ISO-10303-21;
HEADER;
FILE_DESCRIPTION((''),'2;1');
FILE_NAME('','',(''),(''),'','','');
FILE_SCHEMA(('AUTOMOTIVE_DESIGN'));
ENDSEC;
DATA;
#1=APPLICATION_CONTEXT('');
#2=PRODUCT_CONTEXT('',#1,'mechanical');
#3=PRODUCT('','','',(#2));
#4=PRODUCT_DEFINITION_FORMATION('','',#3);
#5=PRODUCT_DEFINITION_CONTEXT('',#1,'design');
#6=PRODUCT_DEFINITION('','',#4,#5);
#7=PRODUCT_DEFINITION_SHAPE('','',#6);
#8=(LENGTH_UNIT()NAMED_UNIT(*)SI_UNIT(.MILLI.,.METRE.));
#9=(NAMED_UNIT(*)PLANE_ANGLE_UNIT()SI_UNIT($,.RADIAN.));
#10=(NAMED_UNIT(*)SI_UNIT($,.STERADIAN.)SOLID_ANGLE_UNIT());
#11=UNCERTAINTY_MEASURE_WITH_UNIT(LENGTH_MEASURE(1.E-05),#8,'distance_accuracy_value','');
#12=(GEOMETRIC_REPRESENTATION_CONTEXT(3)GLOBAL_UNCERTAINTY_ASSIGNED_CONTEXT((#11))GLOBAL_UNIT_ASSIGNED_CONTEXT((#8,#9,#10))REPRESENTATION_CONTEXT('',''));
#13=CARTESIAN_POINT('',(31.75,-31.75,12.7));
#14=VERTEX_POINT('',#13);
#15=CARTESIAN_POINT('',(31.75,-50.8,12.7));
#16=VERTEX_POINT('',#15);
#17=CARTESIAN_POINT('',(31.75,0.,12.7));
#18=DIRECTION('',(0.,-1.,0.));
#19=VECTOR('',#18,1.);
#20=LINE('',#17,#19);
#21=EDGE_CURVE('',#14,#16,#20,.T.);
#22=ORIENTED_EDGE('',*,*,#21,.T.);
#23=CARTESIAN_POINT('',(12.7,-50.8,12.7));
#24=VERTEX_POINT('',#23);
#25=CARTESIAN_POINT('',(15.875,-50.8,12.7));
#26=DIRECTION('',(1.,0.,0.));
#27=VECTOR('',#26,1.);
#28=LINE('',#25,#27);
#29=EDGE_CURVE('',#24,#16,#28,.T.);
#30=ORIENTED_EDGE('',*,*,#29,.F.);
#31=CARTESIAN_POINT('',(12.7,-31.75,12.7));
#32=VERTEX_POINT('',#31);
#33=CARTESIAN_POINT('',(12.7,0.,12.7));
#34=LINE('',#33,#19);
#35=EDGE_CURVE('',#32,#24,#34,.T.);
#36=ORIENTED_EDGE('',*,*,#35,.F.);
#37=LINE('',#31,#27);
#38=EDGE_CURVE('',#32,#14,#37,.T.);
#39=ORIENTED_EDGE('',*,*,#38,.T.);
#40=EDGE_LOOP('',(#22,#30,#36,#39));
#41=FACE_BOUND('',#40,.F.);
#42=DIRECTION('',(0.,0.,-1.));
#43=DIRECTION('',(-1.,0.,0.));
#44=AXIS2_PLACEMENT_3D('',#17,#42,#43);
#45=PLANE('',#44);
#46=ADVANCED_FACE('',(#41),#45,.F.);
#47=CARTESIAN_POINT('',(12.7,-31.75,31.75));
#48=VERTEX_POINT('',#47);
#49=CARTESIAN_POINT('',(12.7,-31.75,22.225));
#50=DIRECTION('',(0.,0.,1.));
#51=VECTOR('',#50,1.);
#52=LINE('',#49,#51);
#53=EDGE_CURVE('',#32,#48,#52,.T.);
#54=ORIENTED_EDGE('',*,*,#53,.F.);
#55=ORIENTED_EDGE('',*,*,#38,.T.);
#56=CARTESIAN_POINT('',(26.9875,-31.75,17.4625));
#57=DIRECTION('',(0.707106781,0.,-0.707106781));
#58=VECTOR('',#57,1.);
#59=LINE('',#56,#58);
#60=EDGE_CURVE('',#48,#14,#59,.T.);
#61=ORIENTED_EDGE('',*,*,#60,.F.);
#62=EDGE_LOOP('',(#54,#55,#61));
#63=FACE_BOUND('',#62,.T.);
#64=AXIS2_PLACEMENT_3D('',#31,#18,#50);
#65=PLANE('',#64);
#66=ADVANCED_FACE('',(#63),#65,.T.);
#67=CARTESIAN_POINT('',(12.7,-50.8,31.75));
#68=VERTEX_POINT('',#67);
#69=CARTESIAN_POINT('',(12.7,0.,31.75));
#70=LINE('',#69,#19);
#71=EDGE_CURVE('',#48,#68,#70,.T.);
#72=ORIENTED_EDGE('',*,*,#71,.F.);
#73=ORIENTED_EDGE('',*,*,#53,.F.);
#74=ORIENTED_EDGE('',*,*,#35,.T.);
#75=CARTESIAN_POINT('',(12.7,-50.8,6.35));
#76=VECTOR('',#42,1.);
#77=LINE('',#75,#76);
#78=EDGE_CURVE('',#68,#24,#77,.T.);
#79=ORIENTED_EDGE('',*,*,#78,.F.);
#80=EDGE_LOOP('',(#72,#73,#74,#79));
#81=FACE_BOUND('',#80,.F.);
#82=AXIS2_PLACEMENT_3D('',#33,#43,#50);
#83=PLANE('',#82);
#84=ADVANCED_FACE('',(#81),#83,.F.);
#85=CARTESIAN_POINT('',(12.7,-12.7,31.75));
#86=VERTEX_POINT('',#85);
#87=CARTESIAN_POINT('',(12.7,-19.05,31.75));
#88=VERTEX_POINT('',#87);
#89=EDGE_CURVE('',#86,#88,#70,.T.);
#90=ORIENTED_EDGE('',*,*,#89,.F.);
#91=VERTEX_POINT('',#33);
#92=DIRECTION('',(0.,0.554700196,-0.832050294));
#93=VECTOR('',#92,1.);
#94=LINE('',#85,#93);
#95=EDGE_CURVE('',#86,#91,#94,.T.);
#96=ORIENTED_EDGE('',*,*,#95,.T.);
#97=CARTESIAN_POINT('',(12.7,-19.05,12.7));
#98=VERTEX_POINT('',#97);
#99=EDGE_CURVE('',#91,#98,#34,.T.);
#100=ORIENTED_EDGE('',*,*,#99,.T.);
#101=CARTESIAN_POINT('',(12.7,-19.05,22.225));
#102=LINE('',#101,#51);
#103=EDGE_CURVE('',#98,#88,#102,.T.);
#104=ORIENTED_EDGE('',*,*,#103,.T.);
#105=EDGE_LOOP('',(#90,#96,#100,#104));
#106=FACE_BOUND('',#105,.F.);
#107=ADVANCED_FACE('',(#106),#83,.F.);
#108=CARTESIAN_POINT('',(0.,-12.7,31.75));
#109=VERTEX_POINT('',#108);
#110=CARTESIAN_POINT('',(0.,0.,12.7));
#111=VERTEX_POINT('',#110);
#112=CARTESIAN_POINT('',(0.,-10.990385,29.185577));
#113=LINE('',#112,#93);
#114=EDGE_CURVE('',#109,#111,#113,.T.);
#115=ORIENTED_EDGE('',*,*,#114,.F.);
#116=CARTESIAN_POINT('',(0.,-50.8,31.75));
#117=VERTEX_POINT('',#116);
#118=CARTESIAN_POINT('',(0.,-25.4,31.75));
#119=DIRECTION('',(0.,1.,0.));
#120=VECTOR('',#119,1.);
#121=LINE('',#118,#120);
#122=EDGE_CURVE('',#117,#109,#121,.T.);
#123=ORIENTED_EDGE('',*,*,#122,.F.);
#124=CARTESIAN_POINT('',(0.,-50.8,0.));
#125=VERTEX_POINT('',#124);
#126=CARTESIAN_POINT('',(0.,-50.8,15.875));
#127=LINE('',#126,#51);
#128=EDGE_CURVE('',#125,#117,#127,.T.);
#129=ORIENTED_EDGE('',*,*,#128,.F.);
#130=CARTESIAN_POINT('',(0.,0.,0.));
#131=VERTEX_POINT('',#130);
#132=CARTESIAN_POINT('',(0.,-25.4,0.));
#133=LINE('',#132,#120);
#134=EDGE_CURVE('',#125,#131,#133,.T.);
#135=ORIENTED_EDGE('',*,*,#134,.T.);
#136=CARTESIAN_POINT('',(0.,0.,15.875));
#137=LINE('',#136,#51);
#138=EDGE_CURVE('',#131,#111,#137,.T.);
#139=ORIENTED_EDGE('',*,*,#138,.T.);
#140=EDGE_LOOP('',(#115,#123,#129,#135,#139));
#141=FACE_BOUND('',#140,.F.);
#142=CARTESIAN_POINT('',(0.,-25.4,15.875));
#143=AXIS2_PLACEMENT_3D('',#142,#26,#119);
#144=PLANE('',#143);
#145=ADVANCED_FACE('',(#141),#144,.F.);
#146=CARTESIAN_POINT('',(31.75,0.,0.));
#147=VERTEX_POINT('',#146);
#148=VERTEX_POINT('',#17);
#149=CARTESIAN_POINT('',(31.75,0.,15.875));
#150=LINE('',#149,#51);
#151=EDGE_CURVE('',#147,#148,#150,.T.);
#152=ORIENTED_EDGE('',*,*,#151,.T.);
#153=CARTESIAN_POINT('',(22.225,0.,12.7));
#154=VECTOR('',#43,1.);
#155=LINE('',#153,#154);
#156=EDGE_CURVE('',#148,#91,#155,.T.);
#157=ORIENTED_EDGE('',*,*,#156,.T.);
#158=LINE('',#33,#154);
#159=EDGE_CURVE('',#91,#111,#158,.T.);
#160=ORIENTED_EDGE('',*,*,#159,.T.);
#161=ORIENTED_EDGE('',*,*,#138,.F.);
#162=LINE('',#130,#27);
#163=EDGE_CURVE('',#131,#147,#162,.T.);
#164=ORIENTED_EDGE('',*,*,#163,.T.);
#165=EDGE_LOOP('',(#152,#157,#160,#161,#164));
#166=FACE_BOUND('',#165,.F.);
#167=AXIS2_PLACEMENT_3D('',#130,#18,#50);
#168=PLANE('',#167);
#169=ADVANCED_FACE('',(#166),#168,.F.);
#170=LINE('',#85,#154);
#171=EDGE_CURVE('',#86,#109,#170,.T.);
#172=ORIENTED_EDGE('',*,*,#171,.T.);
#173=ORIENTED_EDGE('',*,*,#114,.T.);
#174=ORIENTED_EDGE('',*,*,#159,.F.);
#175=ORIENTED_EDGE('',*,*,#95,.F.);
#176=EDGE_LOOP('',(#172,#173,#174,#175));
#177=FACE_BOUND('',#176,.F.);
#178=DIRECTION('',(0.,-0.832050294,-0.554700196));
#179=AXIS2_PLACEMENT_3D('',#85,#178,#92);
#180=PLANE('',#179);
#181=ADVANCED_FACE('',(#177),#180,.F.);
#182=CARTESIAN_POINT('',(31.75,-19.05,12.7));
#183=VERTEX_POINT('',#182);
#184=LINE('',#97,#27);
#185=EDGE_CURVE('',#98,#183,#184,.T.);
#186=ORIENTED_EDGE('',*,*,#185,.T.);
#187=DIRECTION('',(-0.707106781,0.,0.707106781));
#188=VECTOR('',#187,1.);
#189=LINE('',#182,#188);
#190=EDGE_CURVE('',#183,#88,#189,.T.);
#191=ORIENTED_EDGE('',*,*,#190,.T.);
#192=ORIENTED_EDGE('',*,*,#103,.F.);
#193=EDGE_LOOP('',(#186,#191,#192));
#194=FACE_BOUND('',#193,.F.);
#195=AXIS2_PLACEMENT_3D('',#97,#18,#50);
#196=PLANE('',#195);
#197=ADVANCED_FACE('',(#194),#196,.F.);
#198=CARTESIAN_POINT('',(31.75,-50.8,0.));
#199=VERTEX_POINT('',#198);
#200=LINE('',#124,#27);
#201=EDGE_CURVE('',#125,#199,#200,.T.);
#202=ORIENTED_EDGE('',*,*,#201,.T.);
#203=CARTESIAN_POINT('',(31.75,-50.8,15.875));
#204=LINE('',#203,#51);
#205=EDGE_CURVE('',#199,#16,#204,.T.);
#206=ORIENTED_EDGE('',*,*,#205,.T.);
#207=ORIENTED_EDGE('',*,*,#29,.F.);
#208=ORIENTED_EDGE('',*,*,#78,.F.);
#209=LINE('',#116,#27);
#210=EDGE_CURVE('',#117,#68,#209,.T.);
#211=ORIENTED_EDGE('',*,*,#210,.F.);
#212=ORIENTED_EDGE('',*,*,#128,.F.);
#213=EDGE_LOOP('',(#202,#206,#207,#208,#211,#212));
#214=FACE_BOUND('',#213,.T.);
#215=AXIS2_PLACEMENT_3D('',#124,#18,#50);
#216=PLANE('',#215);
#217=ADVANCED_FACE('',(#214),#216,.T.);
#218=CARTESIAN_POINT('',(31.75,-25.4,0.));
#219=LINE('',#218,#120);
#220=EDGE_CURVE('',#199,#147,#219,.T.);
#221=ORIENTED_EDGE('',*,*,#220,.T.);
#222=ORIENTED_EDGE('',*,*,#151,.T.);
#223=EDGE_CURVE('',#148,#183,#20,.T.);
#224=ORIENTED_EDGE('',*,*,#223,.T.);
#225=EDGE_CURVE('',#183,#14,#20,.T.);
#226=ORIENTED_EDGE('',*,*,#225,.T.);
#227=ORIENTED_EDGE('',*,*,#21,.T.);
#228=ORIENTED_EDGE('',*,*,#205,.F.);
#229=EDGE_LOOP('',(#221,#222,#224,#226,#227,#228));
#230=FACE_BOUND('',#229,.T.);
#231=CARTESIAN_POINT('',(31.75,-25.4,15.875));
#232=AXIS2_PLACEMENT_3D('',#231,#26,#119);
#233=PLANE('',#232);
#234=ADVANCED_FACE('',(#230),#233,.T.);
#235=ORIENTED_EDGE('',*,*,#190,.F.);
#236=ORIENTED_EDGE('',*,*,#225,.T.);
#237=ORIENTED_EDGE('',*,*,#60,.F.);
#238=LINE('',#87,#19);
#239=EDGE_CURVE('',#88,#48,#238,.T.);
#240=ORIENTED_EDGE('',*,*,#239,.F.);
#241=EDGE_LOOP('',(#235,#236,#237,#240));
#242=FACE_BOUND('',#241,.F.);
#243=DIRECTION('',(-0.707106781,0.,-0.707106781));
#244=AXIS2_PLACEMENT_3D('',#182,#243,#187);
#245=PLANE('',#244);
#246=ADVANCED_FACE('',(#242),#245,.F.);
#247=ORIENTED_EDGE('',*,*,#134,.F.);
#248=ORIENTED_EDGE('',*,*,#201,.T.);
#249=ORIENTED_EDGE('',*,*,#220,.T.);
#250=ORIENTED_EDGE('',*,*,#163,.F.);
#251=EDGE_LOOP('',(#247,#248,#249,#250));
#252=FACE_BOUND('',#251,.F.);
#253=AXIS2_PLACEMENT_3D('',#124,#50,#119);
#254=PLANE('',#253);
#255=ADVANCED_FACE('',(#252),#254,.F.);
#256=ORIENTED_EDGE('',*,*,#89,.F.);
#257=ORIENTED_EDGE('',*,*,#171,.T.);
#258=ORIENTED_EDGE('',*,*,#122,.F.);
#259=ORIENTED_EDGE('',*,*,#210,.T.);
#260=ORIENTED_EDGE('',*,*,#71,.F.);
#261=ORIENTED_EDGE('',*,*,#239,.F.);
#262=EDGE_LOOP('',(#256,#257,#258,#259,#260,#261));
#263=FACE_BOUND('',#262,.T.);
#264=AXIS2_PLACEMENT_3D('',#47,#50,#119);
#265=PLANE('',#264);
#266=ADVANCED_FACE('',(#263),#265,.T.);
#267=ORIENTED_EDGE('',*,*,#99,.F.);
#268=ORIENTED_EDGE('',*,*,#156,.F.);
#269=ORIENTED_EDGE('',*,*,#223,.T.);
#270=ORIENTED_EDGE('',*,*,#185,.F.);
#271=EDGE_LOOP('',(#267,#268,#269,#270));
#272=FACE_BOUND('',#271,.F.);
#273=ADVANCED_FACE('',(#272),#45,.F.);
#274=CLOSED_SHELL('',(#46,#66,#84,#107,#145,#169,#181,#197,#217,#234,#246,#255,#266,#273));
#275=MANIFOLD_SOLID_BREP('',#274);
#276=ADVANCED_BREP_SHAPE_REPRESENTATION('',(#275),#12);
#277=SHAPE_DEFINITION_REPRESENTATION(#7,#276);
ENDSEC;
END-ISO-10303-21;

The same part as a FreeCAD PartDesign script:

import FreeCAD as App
import Part
import Sketcher
from FreeCAD import Vector
Q = App.Units.Quantity

doc = App.newDocument("Part")
body = doc.addObject("PartDesign::Body", "Body")

# Sketch on YZ plane
sketch1 = body.newObject("Sketcher::SketchObject", "Sketch")
sketch1.AttachmentSupport = (doc.getObject("YZ_Plane"), [""])
sketch1.MapMode = "FlatFace"
sketch1.addGeometry([
    Part.LineSegment(Vector(-50.8, 31.75, 0), Vector(-50.8, 0, 0)),
    Part.LineSegment(Vector(-50.8, 0, 0), Vector(0, 0, 0)),
    Part.LineSegment(Vector(0, 0, 0), Vector(0, 31.75, 0)),
    Part.LineSegment(Vector(0, 31.75, 0), Vector(-50.8, 31.75, 0)),
], False)
sketch1.addConstraint([
    Sketcher.Constraint("Coincident", 0, 2, 1, 1),
    Sketcher.Constraint("Coincident", 1, 2, 2, 1),
    Sketcher.Constraint("Coincident", 2, 2, 3, 1),
    Sketcher.Constraint("Coincident", 3, 2, 0, 1),
    Sketcher.Constraint("Vertical", 0),
    Sketcher.Constraint("Horizontal", 1),
    Sketcher.Constraint("Vertical", 2),
    Sketcher.Constraint("Horizontal", 3),
    Sketcher.Constraint("Coincident", 1, 2, -1, 1),
    Sketcher.Constraint("DistanceX", 1, 1, 1, 2, Q("2 in")),
    Sketcher.Constraint("DistanceY", 0, 2, 0, 1, Q("1.25 in")),
])
pad1 = body.newObject("PartDesign::Pad", "Pad")
pad1.Profile = sketch1
pad1.Length = Q("1.25 in")

# Sketch on XZ plane
sketch2 = body.newObject("Sketcher::SketchObject", "Sketch001")
sketch2.AttachmentSupport = (doc.getObject("XZ_Plane"), [""])
sketch2.MapMode = "FlatFace"
sketch2.addGeometry([
    Part.LineSegment(Vector(31.75, 31.75, 0), Vector(31.75, 12.7, 0)),
    Part.LineSegment(Vector(31.75, 12.7, 0), Vector(12.7, 12.7, 0)),
    Part.LineSegment(Vector(12.7, 12.7, 0), Vector(12.7, 31.75, 0)),
    Part.LineSegment(Vector(12.7, 31.75, 0), Vector(31.75, 31.75, 0)),
], False)
sketch2.addConstraint([
    Sketcher.Constraint("Coincident", 0, 2, 1, 1),
    Sketcher.Constraint("Coincident", 1, 2, 2, 1),
    Sketcher.Constraint("Coincident", 2, 2, 3, 1),
    Sketcher.Constraint("Coincident", 3, 2, 0, 1),
    Sketcher.Constraint("Vertical", 0),
    Sketcher.Constraint("Horizontal", 1),
    Sketcher.Constraint("Vertical", 2),
    Sketcher.Constraint("Horizontal", 3),
    Sketcher.Constraint("Equal", 3, 0),
    Sketcher.Constraint("DistanceX", 1, 2, 1, 1, Q("0.75 in")),
    Sketcher.Constraint("DistanceY", -1, 1, 0, 2, Q("0.5 in")),
    Sketcher.Constraint("DistanceX", -1, 1, 1, 2, Q("0.5 in")),
])
pocket1 = body.newObject("PartDesign::Pocket", "Pocket")
pocket1.Profile = sketch2
pocket1.Type = "ThroughAll"
pocket1.Reversed = True

# Sketch on YZ plane
sketch3 = body.newObject("Sketcher::SketchObject", "Sketch002")
sketch3.AttachmentSupport = (doc.getObject("YZ_Plane"), [""])
sketch3.MapMode = "FlatFace"
sketch3.AttachmentOffset = App.Placement(Vector(0, 0, 0.5 * 25.4), App.Rotation())
sketch3.addGeometry([
    Part.LineSegment(Vector(0, 31.75, 0), Vector(-12.7, 31.75, 0)),
    Part.LineSegment(Vector(-12.7, 31.75, 0), Vector(0, 12.7, 0)),
    Part.LineSegment(Vector(0, 12.7, 0), Vector(0, 31.75, 0)),
], False)
sketch3.addConstraint([
    Sketcher.Constraint("Coincident", 0, 2, 1, 1),
    Sketcher.Constraint("Coincident", 1, 2, 2, 1),
    Sketcher.Constraint("Coincident", 2, 2, 0, 1),
    Sketcher.Constraint("Horizontal", 0),
    Sketcher.Constraint("Vertical", 2),
    Sketcher.Constraint("PointOnObject", 1, 2, -2),
    Sketcher.Constraint("DistanceX", 0, 2, 0, 1, Q("0.5 in")),
    Sketcher.Constraint("DistanceY", 2, 1, 2, 2, Q("0.75 in")),
    Sketcher.Constraint("DistanceY", -1, 1, 1, 2, Q("0.5 in")),
])
pocket2 = body.newObject("PartDesign::Pocket", "Pocket001")
pocket2.Profile = sketch3
pocket2.Type = "ThroughAll"

# Sketch on YZ plane
sketch4 = body.newObject("Sketcher::SketchObject", "Sketch003")
sketch4.AttachmentSupport = (doc.getObject("YZ_Plane"), [""])
sketch4.MapMode = "FlatFace"
sketch4.AttachmentOffset = App.Placement(Vector(0, 0, 0.5 * 25.4), App.Rotation())
sketch4.addGeometry([
    Part.LineSegment(Vector(-31.75, 31.75, 0), Vector(-31.75, 12.7, 0)),
    Part.LineSegment(Vector(-31.75, 12.7, 0), Vector(-19.05, 12.7, 0)),
    Part.LineSegment(Vector(-19.05, 12.7, 0), Vector(-19.05, 31.75, 0)),
    Part.LineSegment(Vector(-19.05, 31.75, 0), Vector(-31.75, 31.75, 0)),
], False)
sketch4.addConstraint([
    Sketcher.Constraint("Coincident", 0, 2, 1, 1),
    Sketcher.Constraint("Coincident", 1, 2, 2, 1),
    Sketcher.Constraint("Coincident", 2, 2, 3, 1),
    Sketcher.Constraint("Coincident", 3, 2, 0, 1),
    Sketcher.Constraint("Vertical", 0),
    Sketcher.Constraint("Horizontal", 1),
    Sketcher.Constraint("Vertical", 2),
    Sketcher.Constraint("Horizontal", 3),
    Sketcher.Constraint("DistanceX", 1, 1, 1, 2, Q("0.5 in")),
    Sketcher.Constraint("DistanceY", 0, 2, 0, 1, Q("0.75 in")),
    Sketcher.Constraint("DistanceY", -1, 1, 0, 2, Q("0.5 in")),
    Sketcher.Constraint("DistanceX", 0, 2, -1, 1, Q("1.25 in")),
])
pad2 = body.newObject("PartDesign::Pad", "Pad001")
pad2.Profile = sketch4
pad2.Length = Q("1 in")

# Sketch on XZ plane
sketch5 = body.newObject("Sketcher::SketchObject", "Sketch004")
sketch5.AttachmentSupport = (doc.getObject("XZ_Plane"), [""])
sketch5.MapMode = "FlatFace"
sketch5.AttachmentOffset = App.Placement(Vector(0, 0, 0.75 * 25.4), App.Rotation())
sketch5.addGeometry([
    Part.LineSegment(Vector(38.1, 12.7, 0), Vector(31.75, 12.7, 0)),
    Part.LineSegment(Vector(31.75, 12.7, 0), Vector(12.7, 31.75, 0)),
    Part.LineSegment(Vector(12.7, 31.75, 0), Vector(38.1, 31.75, 0)),
    Part.LineSegment(Vector(38.1, 31.75, 0), Vector(38.1, 12.7, 0)),
], False)
sketch5.addConstraint([
    Sketcher.Constraint("Coincident", 0, 2, 1, 1),
    Sketcher.Constraint("Coincident", 1, 2, 2, 1),
    Sketcher.Constraint("Coincident", 2, 2, 3, 1),
    Sketcher.Constraint("Coincident", 3, 2, 0, 1),
    Sketcher.Constraint("Horizontal", 0),
    Sketcher.Constraint("Horizontal", 2),
    Sketcher.Constraint("Vertical", 3),
    Sketcher.Constraint("DistanceX", 2, 1, 2, 2, Q("1 in")),
    Sketcher.Constraint("Angle", 1, Q("135 deg")),
    Sketcher.Constraint("DistanceX", 0, 2, 0, 1, Q("0.25 in")),
    Sketcher.Constraint("DistanceY", -1, 1, 0, 2, Q("0.5 in")),
    Sketcher.Constraint("DistanceX", -1, 1, 1, 2, Q("0.5 in")),
])
pocket3 = body.newObject("PartDesign::Pocket", "Pocket002")
pocket3.Profile = sketch5
pocket3.Type = "ThroughAll"
pocket3.Reversed = True

doc.recompute()
